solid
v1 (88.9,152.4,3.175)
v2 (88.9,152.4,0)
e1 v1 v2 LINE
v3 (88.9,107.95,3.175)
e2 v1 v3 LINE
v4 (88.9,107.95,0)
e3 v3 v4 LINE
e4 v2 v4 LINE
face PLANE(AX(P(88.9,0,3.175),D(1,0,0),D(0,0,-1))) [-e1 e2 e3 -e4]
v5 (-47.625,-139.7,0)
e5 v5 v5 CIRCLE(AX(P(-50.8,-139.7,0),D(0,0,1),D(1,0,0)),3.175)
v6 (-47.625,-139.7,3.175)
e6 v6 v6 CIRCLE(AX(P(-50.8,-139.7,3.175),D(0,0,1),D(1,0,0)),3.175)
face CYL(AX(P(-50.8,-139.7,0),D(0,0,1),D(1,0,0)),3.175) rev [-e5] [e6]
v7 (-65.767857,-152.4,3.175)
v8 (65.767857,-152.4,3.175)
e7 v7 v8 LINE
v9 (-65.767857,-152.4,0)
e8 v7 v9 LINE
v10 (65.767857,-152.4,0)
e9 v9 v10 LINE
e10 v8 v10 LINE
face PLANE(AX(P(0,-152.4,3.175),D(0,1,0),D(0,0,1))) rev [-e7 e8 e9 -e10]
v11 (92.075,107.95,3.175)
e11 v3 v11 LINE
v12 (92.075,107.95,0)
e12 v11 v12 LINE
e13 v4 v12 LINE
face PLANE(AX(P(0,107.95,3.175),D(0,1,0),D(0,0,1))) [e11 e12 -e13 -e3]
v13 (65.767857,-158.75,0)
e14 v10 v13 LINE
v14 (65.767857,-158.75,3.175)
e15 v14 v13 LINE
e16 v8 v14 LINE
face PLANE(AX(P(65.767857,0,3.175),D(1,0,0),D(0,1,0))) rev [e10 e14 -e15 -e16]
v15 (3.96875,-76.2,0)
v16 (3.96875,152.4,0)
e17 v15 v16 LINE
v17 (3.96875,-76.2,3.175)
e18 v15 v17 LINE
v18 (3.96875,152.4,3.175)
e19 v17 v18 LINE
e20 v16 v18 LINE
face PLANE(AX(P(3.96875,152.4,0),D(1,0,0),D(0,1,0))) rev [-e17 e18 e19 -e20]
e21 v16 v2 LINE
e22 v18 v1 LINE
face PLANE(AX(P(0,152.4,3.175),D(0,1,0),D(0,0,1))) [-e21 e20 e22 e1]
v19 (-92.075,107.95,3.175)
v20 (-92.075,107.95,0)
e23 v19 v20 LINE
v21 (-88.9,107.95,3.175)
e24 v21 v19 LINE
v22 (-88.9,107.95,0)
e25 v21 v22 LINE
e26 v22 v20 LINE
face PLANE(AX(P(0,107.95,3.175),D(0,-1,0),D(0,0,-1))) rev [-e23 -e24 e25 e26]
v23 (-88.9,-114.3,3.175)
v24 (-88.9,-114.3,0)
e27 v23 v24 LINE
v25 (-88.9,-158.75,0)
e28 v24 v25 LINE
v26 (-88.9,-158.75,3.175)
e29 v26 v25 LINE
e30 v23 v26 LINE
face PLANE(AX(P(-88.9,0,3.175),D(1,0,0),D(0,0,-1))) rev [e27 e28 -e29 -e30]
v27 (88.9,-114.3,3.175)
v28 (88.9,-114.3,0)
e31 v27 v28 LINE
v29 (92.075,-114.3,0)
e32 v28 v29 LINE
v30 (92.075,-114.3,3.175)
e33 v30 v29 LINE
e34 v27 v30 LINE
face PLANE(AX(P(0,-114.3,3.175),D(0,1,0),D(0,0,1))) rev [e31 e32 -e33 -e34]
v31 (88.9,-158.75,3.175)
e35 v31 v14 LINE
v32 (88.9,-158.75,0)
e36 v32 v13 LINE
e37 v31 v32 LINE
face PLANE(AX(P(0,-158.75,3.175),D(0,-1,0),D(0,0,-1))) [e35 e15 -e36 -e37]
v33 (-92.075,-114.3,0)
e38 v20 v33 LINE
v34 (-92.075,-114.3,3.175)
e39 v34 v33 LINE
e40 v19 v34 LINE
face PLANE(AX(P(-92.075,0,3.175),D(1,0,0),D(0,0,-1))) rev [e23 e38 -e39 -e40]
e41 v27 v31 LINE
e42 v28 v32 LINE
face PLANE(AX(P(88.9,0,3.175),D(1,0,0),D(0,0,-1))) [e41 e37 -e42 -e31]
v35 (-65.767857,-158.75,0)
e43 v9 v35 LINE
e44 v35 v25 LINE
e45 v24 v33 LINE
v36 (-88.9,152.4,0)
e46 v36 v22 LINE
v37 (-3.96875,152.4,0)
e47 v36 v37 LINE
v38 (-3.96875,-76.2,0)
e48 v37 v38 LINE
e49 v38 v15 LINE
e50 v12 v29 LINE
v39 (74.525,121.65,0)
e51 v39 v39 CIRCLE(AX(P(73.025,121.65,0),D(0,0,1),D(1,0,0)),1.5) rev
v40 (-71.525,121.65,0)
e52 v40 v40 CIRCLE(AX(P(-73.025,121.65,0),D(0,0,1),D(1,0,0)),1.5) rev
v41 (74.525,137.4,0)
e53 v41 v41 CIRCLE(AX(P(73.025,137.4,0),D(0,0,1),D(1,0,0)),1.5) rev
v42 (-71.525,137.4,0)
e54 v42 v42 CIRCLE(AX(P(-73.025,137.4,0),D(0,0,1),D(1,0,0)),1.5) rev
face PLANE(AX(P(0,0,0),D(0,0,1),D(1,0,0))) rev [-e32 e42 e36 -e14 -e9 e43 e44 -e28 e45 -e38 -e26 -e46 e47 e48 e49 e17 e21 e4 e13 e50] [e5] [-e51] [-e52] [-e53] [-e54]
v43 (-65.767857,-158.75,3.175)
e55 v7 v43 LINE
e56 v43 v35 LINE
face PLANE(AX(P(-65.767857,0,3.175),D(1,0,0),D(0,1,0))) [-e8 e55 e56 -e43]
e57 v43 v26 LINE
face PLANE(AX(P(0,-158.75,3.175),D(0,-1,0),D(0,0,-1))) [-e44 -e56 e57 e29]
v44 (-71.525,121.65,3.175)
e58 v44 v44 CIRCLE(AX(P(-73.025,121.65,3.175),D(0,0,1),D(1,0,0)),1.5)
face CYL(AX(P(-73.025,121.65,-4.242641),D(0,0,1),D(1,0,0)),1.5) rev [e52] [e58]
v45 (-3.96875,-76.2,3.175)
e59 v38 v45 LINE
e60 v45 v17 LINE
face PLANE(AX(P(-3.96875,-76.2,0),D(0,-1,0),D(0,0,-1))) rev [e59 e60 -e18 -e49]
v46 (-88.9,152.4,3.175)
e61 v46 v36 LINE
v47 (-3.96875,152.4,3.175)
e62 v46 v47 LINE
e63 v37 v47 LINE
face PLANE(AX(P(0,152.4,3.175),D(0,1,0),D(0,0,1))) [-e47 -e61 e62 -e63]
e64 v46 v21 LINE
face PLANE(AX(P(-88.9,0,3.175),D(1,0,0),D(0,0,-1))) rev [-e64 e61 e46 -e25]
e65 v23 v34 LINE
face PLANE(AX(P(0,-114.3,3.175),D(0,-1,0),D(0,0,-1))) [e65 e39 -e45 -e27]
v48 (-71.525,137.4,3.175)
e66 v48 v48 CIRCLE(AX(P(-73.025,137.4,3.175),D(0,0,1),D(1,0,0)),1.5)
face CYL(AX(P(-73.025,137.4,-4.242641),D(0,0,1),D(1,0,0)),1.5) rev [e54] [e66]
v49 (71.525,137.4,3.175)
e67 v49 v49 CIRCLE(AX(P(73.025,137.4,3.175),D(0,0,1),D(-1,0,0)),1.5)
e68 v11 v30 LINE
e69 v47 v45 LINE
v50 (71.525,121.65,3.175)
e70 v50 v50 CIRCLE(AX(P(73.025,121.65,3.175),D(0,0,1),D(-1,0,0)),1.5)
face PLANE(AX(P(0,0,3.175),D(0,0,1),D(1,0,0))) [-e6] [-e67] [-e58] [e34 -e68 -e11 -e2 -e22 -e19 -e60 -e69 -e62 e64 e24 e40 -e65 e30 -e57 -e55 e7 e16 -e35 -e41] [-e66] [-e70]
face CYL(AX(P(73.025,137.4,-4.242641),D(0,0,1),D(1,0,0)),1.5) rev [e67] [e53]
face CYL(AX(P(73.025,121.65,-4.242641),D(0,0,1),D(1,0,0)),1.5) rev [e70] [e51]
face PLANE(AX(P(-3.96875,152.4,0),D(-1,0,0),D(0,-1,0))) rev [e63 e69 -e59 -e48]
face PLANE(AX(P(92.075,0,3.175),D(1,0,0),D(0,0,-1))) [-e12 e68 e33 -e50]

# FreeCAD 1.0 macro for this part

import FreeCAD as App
import Part
import Sketcher
Q = App.Units.Quantity

doc = App.newDocument("Part")
params = doc.addObject("Spreadsheet::Sheet", "Params")
for row, (alias, value) in enumerate([
    ("sketch1_width", "7 in"),
    ("sketch1_height", "1.5 in"),
    ("sketch1_height2", "0.25 in"),
    ("sketch1_width2", "0.125 in"),
    ("pad1_length", "0.125 in"),
    ("sketch2_height", "9 in"),
    ("sketch2_width", "0.3125 in"),
    ("sketch3_diameter", "0.25 in"),
    ("pocket3_length", "0.125 in"),
    ("sketch5_height", "1.75 in"),
    ("sketch5_width", "0.125 in"),
    ("pad2_length", "0.125 in"),
    ("sketch6_height", "0.25 in"),
    ("pocket4_length", "0.125 in"),
], start=1):
    params.set(f"A{row}", alias)
    params.set(f"B{row}", "=" + value)
    params.setAlias(f"B{row}", alias)

body = doc.addObject("PartDesign::Body", "Body")

# Sketch on XY plane
sketch1 = doc.addObject("Sketcher::SketchObject", "Sketch")
body.addObject(sketch1)
sketch1.AttachmentSupport = (doc.XY_Plane, [""])
sketch1.MapMode = "FlatFace"
sketch1.addGeometry(Part.LineSegment(App.Vector(-88.9, 152.4, 0), App.Vector(-88.9, 108, 0)), False)
sketch1.addGeometry(Part.LineSegment(App.Vector(-88.9, 108, 0), App.Vector(-92.1, 108, 0)), False)
sketch1.addGeometry(Part.LineSegment(App.Vector(-92.1, 108, 0), App.Vector(-92.1, 63.5, 0)), False)
sketch1.addGeometry(Part.LineSegment(App.Vector(-92.1, 63.5, 0), App.Vector(-88.9, 63.5, 0)), False)
sketch1.addGeometry(Part.LineSegment(App.Vector(-88.9, 63.5, 0), App.Vector(-88.9, 19.1, 0)), False)
sketch1.addGeometry(Part.LineSegment(App.Vector(-88.9, 19.1, 0), App.Vector(-92.1, 19.1, 0)), False)
sketch1.addGeometry(Part.LineSegment(App.Vector(-92.1, 19.1, 0), App.Vector(-92.1, -25.4, 0)), False)
sketch1.addGeometry(Part.LineSegment(App.Vector(-92.1, -25.4, 0), App.Vector(-88.9, -25.4, 0)), False)
sketch1.addGeometry(Part.LineSegment(App.Vector(-88.9, -25.4, 0), App.Vector(-88.9, -69.8, 0)), False)
sketch1.addGeometry(Part.LineSegment(App.Vector(-88.9, -69.8, 0), App.Vector(-92.1, -69.8, 0)), False)
sketch1.addGeometry(Part.LineSegment(App.Vector(-92.1, -69.8, 0), App.Vector(-92.1, -114.3, 0)), False)
sketch1.addGeometry(Part.LineSegment(App.Vector(-92.1, -114.3, 0), App.Vector(-88.9, -114.3, 0)), False)
sketch1.addGeometry(Part.LineSegment(App.Vector(-88.9, -114.3, 0), App.Vector(-88.9, -152.4, 0)), False)
sketch1.addGeometry(Part.LineSegment(App.Vector(-88.9, -152.4, 0), App.Vector(-88.9, -158.8, 0)), False)
sketch1.addGeometry(Part.LineSegment(App.Vector(-88.9, -158.8, 0), App.Vector(-65.8, -158.8, 0)), False)
sketch1.addGeometry(Part.LineSegment(App.Vector(-65.8, -158.8, 0), App.Vector(-65.8, -152.4, 0)), False)
sketch1.addGeometry(Part.LineSegment(App.Vector(-65.8, -152.4, 0), App.Vector(-39.5, -152.4, 0)), False)
sketch1.addGeometry(Part.LineSegment(App.Vector(-39.5, -152.4, 0), App.Vector(-39.5, -158.8, 0)), False)
sketch1.addGeometry(Part.LineSegment(App.Vector(-39.5, -158.8, 0), App.Vector(-13.2, -158.8, 0)), False)
sketch1.addGeometry(Part.LineSegment(App.Vector(-13.2, -158.8, 0), App.Vector(-13.2, -152.4, 0)), False)
sketch1.addGeometry(Part.LineSegment(App.Vector(-13.2, -152.4, 0), App.Vector(13.2, -152.4, 0)), False)
sketch1.addGeometry(Part.LineSegment(App.Vector(13.2, -152.4, 0), App.Vector(13.2, -158.8, 0)), False)
sketch1.addGeometry(Part.LineSegment(App.Vector(13.2, -158.8, 0), App.Vector(39.5, -158.8, 0)), False)
sketch1.addGeometry(Part.LineSegment(App.Vector(39.5, -158.8, 0), App.Vector(39.5, -152.4, 0)), False)
sketch1.addGeometry(Part.LineSegment(App.Vector(39.5, -152.4, 0), App.Vector(65.8, -152.4, 0)), False)
sketch1.addGeometry(Part.LineSegment(App.Vector(65.8, -152.4, 0), App.Vector(65.8, -158.8, 0)), False)
sketch1.addGeometry(Part.LineSegment(App.Vector(65.8, -158.8, 0), App.Vector(88.9, -158.8, 0)), False)
sketch1.addGeometry(Part.LineSegment(App.Vector(88.9, -158.8, 0), App.Vector(88.9, -152.4, 0)), False)
sketch1.addGeometry(Part.LineSegment(App.Vector(88.9, -152.4, 0), App.Vector(88.9, -114.3, 0)), False)
sketch1.addGeometry(Part.LineSegment(App.Vector(88.9, -114.3, 0), App.Vector(92.1, -114.3, 0)), False)
sketch1.addGeometry(Part.LineSegment(App.Vector(92.1, -114.3, 0), App.Vector(92.1, -69.8, 0)), False)
sketch1.addGeometry(Part.LineSegment(App.Vector(92.1, -69.8, 0), App.Vector(88.9, -69.8, 0)), False)
sketch1.addGeometry(Part.LineSegment(App.Vector(88.9, -69.8, 0), App.Vector(88.9, -25.4, 0)), False)
sketch1.addGeometry(Part.LineSegment(App.Vector(88.9, -25.4, 0), App.Vector(92.1, -25.4, 0)), False)
sketch1.addGeometry(Part.LineSegment(App.Vector(92.1, -25.4, 0), App.Vector(92.1, 19.1, 0)), False)
sketch1.addGeometry(Part.LineSegment(App.Vector(92.1, 19.1, 0), App.Vector(88.9, 19.1, 0)), False)
sketch1.addGeometry(Part.LineSegment(App.Vector(88.9, 19.1, 0), App.Vector(88.9, 63.5, 0)), False)
sketch1.addGeometry(Part.LineSegment(App.Vector(88.9, 63.5, 0), App.Vector(92.1, 63.5, 0)), False)
sketch1.addGeometry(Part.LineSegment(App.Vector(92.1, 63.5, 0), App.Vector(92.1, 108, 0)), False)
sketch1.addGeometry(Part.LineSegment(App.Vector(92.1, 108, 0), App.Vector(88.9, 108, 0)), False)
sketch1.addGeometry(Part.LineSegment(App.Vector(88.9, 108, 0), App.Vector(88.9, 152.4, 0)), False)
sketch1.addGeometry(Part.LineSegment(App.Vector(88.9, 152.4, 0), App.Vector(-88.9, 152.4, 0)), False)
sketch1.addConstraint(Sketcher.Constraint("Coincident", 0, 2, 1, 1))
sketch1.addConstraint(Sketcher.Constraint("Coincident", 1, 2, 2, 1))
sketch1.addConstraint(Sketcher.Constraint("Coincident", 2, 2, 3, 1))
sketch1.addConstraint(Sketcher.Constraint("Coincident", 3, 2, 4, 1))
sketch1.addConstraint(Sketcher.Constraint("Coincident", 4, 2, 5, 1))
sketch1.addConstraint(Sketcher.Constraint("Coincident", 5, 2, 6, 1))
sketch1.addConstraint(Sketcher.Constraint("Coincident", 6, 2, 7, 1))
sketch1.addConstraint(Sketcher.Constraint("Coincident", 7, 2, 8, 1))
sketch1.addConstraint(Sketcher.Constraint("Coincident", 8, 2, 9, 1))
sketch1.addConstraint(Sketcher.Constraint("Coincident", 9, 2, 10, 1))
sketch1.addConstraint(Sketcher.Constraint("Coincident", 10, 2, 11, 1))
sketch1.addConstraint(Sketcher.Constraint("Coincident", 11, 2, 12, 1))
sketch1.addConstraint(Sketcher.Constraint("Coincident", 12, 2, 13, 1))
sketch1.addConstraint(Sketcher.Constraint("Coincident", 13, 2, 14, 1))
sketch1.addConstraint(Sketcher.Constraint("Coincident", 14, 2, 15, 1))
sketch1.addConstraint(Sketcher.Constraint("Coincident", 15, 2, 16, 1))
sketch1.addConstraint(Sketcher.Constraint("Coincident", 16, 2, 17, 1))
sketch1.addConstraint(Sketcher.Constraint("Coincident", 17, 2, 18, 1))
sketch1.addConstraint(Sketcher.Constraint("Coincident", 18, 2, 19, 1))
sketch1.addConstraint(Sketcher.Constraint("Coincident", 19, 2, 20, 1))
sketch1.addConstraint(Sketcher.Constraint("Coincident", 20, 2, 21, 1))
sketch1.addConstraint(Sketcher.Constraint("Coincident", 21, 2, 22, 1))
sketch1.addConstraint(Sketcher.Constraint("Coincident", 22, 2, 23, 1))
sketch1.addConstraint(Sketcher.Constraint("Coincident", 23, 2, 24, 1))
sketch1.addConstraint(Sketcher.Constraint("Coincident", 24, 2, 25, 1))
sketch1.addConstraint(Sketcher.Constraint("Coincident", 25, 2, 26, 1))
sketch1.addConstraint(Sketcher.Constraint("Coincident", 26, 2, 27, 1))
sketch1.addConstraint(Sketcher.Constraint("Coincident", 27, 2, 28, 1))
sketch1.addConstraint(Sketcher.Constraint("Coincident", 28, 2, 29, 1))
sketch1.addConstraint(Sketcher.Constraint("Coincident", 29, 2, 30, 1))
sketch1.addConstraint(Sketcher.Constraint("Coincident", 30, 2, 31, 1))
sketch1.addConstraint(Sketcher.Constraint("Coincident", 31, 2, 32, 1))
sketch1.addConstraint(Sketcher.Constraint("Coincident", 32, 2, 33, 1))
sketch1.addConstraint(Sketcher.Constraint("Coincident", 33, 2, 34, 1))
sketch1.addConstraint(Sketcher.Constraint("Coincident", 34, 2, 35, 1))
sketch1.addConstraint(Sketcher.Constraint("Coincident", 35, 2, 36, 1))
sketch1.addConstraint(Sketcher.Constraint("Coincident", 36, 2, 37, 1))
sketch1.addConstraint(Sketcher.Constraint("Coincident", 37, 2, 38, 1))
sketch1.addConstraint(Sketcher.Constraint("Coincident", 38, 2, 39, 1))
sketch1.addConstraint(Sketcher.Constraint("Coincident", 39, 2, 40, 1))
sketch1.addConstraint(Sketcher.Constraint("Coincident", 40, 2, 41, 1))
sketch1.addConstraint(Sketcher.Constraint("Coincident", 41, 2, 0, 1))
sketch1.addConstraint(Sketcher.Constraint("Vertical", 0))
sketch1.addConstraint(Sketcher.Constraint("Horizontal", 1))
sketch1.addConstraint(Sketcher.Constraint("Vertical", 2))
sketch1.addConstraint(Sketcher.Constraint("Horizontal", 3))
sketch1.addConstraint(Sketcher.Constraint("Vertical", 4))
sketch1.addConstraint(Sketcher.Constraint("Horizontal", 5))
sketch1.addConstraint(Sketcher.Constraint("Vertical", 6))
sketch1.addConstraint(Sketcher.Constraint("Horizontal", 7))
sketch1.addConstraint(Sketcher.Constraint("Vertical", 8))
sketch1.addConstraint(Sketcher.Constraint("Horizontal", 9))
sketch1.addConstraint(Sketcher.Constraint("Vertical", 10))
sketch1.addConstraint(Sketcher.Constraint("Horizontal", 11))
sketch1.addConstraint(Sketcher.Constraint("Vertical", 12))
sketch1.addConstraint(Sketcher.Constraint("Vertical", 13))
sketch1.addConstraint(Sketcher.Constraint("Horizontal", 14))
sketch1.addConstraint(Sketcher.Constraint("Vertical", 15))
sketch1.addConstraint(Sketcher.Constraint("Horizontal", 16))
sketch1.addConstraint(Sketcher.Constraint("Vertical", 17))
sketch1.addConstraint(Sketcher.Constraint("Horizontal", 18))
sketch1.addConstraint(Sketcher.Constraint("Vertical", 19))
sketch1.addConstraint(Sketcher.Constraint("Horizontal", 20))
sketch1.addConstraint(Sketcher.Constraint("Vertical", 21))
sketch1.addConstraint(Sketcher.Constraint("Horizontal", 22))
sketch1.addConstraint(Sketcher.Constraint("Vertical", 23))
sketch1.addConstraint(Sketcher.Constraint("Horizontal", 24))
sketch1.addConstraint(Sketcher.Constraint("Vertical", 25))
sketch1.addConstraint(Sketcher.Constraint("Horizontal", 26))
sketch1.addConstraint(Sketcher.Constraint("Vertical", 27))
sketch1.addConstraint(Sketcher.Constraint("Vertical", 28))
sketch1.addConstraint(Sketcher.Constraint("Horizontal", 29))
sketch1.addConstraint(Sketcher.Constraint("Vertical", 30))
sketch1.addConstraint(Sketcher.Constraint("Horizontal", 31))
sketch1.addConstraint(Sketcher.Constraint("Vertical", 32))
sketch1.addConstraint(Sketcher.Constraint("Horizontal", 33))
sketch1.addConstraint(Sketcher.Constraint("Vertical", 34))
sketch1.addConstraint(Sketcher.Constraint("Horizontal", 35))
sketch1.addConstraint(Sketcher.Constraint("Vertical", 36))
sketch1.addConstraint(Sketcher.Constraint("Horizontal", 37))
sketch1.addConstraint(Sketcher.Constraint("Vertical", 38))
sketch1.addConstraint(Sketcher.Constraint("Horizontal", 39))
sketch1.addConstraint(Sketcher.Constraint("Vertical", 40))
sketch1.addConstraint(Sketcher.Constraint("Horizontal", 41))
sketch1.addConstraint(Sketcher.Constraint("Symmetric", 12, 2, 40, 2, -1, 1))
sketch1.addConstraint(Sketcher.Constraint("Symmetric", 27, 2, 41, 2, -1, 1))
sketch1.addConstraint(Sketcher.Constraint("Symmetric", 18, 2, 21, 2, -2))
sketch1.addConstraint(Sketcher.Constraint("Symmetric", 16, 2, 23, 2, -2))
sketch1.addConstraint(Sketcher.Constraint("Symmetric", 14, 2, 25, 2, -2))
sketch1.addConstraint(Sketcher.Constraint("Symmetric", 11, 2, 28, 2, -2))
sketch1.addConstraint(Sketcher.Constraint("Symmetric", 9, 2, 30, 2, -2))
sketch1.addConstraint(Sketcher.Constraint("Symmetric", 7, 2, 32, 2, -2))
sketch1.addConstraint(Sketcher.Constraint("Symmetric", 5, 2, 34, 2, -2))
sketch1.addConstraint(Sketcher.Constraint("Symmetric", 3, 2, 36, 2, -2))
sketch1.addConstraint(Sketcher.Constraint("Symmetric", 1, 2, 38, 2, -2))
sketch1.addConstraint(Sketcher.Constraint("Horizontal", 12, 2, 15, 2))
sketch1.addConstraint(Sketcher.Constraint("Horizontal", 14, 2, 17, 2))
sketch1.addConstraint(Sketcher.Constraint("Horizontal", 16, 2, 19, 2))
sketch1.addConstraint(Sketcher.Constraint("Vertical", 0, 2, 3, 2))
sketch1.addConstraint(Sketcher.Constraint("Vertical", 2, 2, 5, 2))
sketch1.addConstraint(Sketcher.Constraint("Vertical", 4, 2, 7, 2))
sketch1.addConstraint(Sketcher.Constraint("Vertical", 6, 2, 9, 2))
sketch1.addConstraint(Sketcher.Constraint("Equal", 16, 18))
sketch1.addConstraint(Sketcher.Constraint("Equal", 18, 20))
sketch1.addConstraint(Sketcher.Constraint("Equal", 0, 2))
sketch1.addConstraint(Sketcher.Constraint("Equal", 2, 4))
sketch1.addConstraint(Sketcher.Constraint("Equal", 4, 6))
sketch1.addConstraint(Sketcher.Constraint("Equal", 6, 8))
sketch1.addConstraint(Sketcher.Constraint("Equal", 8, 10))
sketch1.addConstraint(Sketcher.Constraint("DistanceX", 41, 2, 41, 1, Q("7 in")))
sketch1.addConstraint(Sketcher.Constraint("DistanceY", 12, 2, 12, 1, Q("1.5 in")))
sketch1.addConstraint(Sketcher.Constraint("DistanceY", 6, 2, -1, 1, Q("1 in")))
sketch1.addConstraint(Sketcher.Constraint("DistanceY", 13, 2, 13, 1, Q("0.25 in")))
sketch1.addConstraint(Sketcher.Constraint("DistanceX", 1, 2, 1, 1, Q("0.125 in")))
sketch1.addConstraint(Sketcher.Constraint("DistanceX", 14, 1, 14, 2, 23.132143))
sketch1.setExpression("Constraints[109]", "Params.sketch1_width")
sketch1.setExpression("Constraints[110]", "Params.sketch1_height")
sketch1.setExpression("Constraints[112]", "Params.sketch1_height2")
sketch1.setExpression("Constraints[113]", "Params.sketch1_width2")
pad1 = doc.addObject("PartDesign::Pad", "Pad")
body.addObject(pad1)
pad1.Profile = sketch1
pad1.setExpression("Length", "Params.pad1_length")

# Sketch on XY plane
sketch2 = doc.addObject("Sketcher::SketchObject", "Sketch001")
body.addObject(sketch2)
sketch2.AttachmentSupport = (doc.XY_Plane, [""])
sketch2.MapMode = "FlatFace"
sketch2.AttachmentOffset = App.Placement(App.Vector(0, 0, 0.125 * 25.4), App.Rotation())
sketch2.addGeometry(Part.LineSegment(App.Vector(-4, 152, 0), App.Vector(-4, -76, 0)), False)
sketch2.addGeometry(Part.LineSegment(App.Vector(-4, -76, 0), App.Vector(4, -76, 0)), False)
sketch2.addGeometry(Part.LineSegment(App.Vector(4, -76, 0), App.Vector(4, 152, 0)), False)
sketch2.addGeometry(Part.LineSegment(App.Vector(4, 152, 0), App.Vector(-4, 152, 0)), False)
sketch2.addConstraint(Sketcher.Constraint("Coincident", 0, 2, 1, 1))
sketch2.addConstraint(Sketcher.Constraint("Coincident", 1, 2, 2, 1))
sketch2.addConstraint(Sketcher.Constraint("Coincident", 2, 2, 3, 1))
sketch2.addConstraint(Sketcher.Constraint("Coincident", 3, 2, 0, 1))
sketch2.addConstraint(Sketcher.Constraint("Vertical", 0))
sketch2.addConstraint(Sketcher.Constraint("Horizontal", 1))
sketch2.addConstraint(Sketcher.Constraint("Vertical", 2))
sketch2.addConstraint(Sketcher.Constraint("Horizontal", 3))
sketch2.addConstraint(Sketcher.Constraint("DistanceY", 0, 2, 0, 1, Q("9 in")))
sketch2.addConstraint(Sketcher.Constraint("DistanceY", 0, 2, -1, 1, Q("3 in")))
sketch2.addConstraint(Sketcher.Constraint("DistanceX", 1, 1, 1, 2, Q("0.3125 in")))
sketch2.addConstraint(Sketcher.Constraint("DistanceX", 0, 2, -1, 1, Q("0.15625 in")))
sketch2.setExpression("Constraints[8]", "Params.sketch2_height")
sketch2.setExpression("Constraints[10]", "Params.sketch2_width")
pocket1 = doc.addObject("PartDesign::Pocket", "Pocket")
body.addObject(pocket1)
pocket1.Profile = sketch2
pocket1.Type = "ThroughAll"

# Sketch on XY plane
sketch3 = doc.addObject("Sketcher::SketchObject", "Sketch002")
body.addObject(sketch3)
sketch3.AttachmentSupport = (doc.XY_Plane, [""])
sketch3.MapMode = "FlatFace"
sketch3.AttachmentOffset = App.Placement(App.Vector(0, 0, 0.125 * 25.4), App.Rotation())
sketch3.addGeometry(Part.Circle(App.Vector(-50.8, -139.7, 0), App.Vector(0, 0, 1), 3.2), False)
sketch3.addConstraint(Sketcher.Constraint("Diameter", 0, Q("0.25 in")))
sketch3.addConstraint(Sketcher.Constraint("DistanceX", 0, 3, -1, 1, Q("2 in")))
sketch3.addConstraint(Sketcher.Constraint("DistanceY", 0, 3, -1, 1, Q("5.5 in")))
sketch3.setExpression("Constraints[0]", "Params.sketch3_diameter")
pocket2 = doc.addObject("PartDesign::Pocket", "Pocket001")
body.addObject(pocket2)
pocket2.Profile = sketch3
pocket2.Type = "ThroughAll"

# Sketch on XY plane
sketch4 = doc.addObject("Sketcher::SketchObject", "Sketch003")
body.addObject(sketch4)
sketch4.AttachmentSupport = (doc.XY_Plane, [""])
sketch4.MapMode = "FlatFace"
sketch4.AttachmentOffset = App.Placement(App.Vector(0, 0, 0.125 * 25.4), App.Rotation())
sketch4.addGeometry(Part.Circle(App.Vector(-73, 137.4, 0), App.Vector(0, 0, 1), 1.5), False)
sketch4.addGeometry(Part.Circle(App.Vector(-73, 121.7, 0), App.Vector(0, 0, 1), 1.5), False)
sketch4.addGeometry(Part.Circle(App.Vector(73, 121.7, 0), App.Vector(0, 0, 1), 1.5), False)
sketch4.addGeometry(Part.Circle(App.Vector(73, 137.4, 0), App.Vector(0, 0, 1), 1.5), False)
sketch4.addConstraint(Sketcher.Constraint("Equal", 0, 1))
sketch4.addConstraint(Sketcher.Constraint("Equal", 1, 2))
sketch4.addConstraint(Sketcher.Constraint("Equal", 2, 3))
sketch4.addConstraint(Sketcher.Constraint("Symmetric", 1, 3, 2, 3, -2))
sketch4.addConstraint(Sketcher.Constraint("Symmetric", 0, 3, 3, 3, -2))
sketch4.addConstraint(Sketcher.Constraint("Vertical", 0, 3, 1, 3))
sketch4.addConstraint(Sketcher.Constraint("Diameter", 0, 3.0))
sketch4.addConstraint(Sketcher.Constraint("DistanceX", 1, 3, 2, 3, Q("5.75 in")))
sketch4.addConstraint(Sketcher.Constraint("DistanceY", -1, 1, 0, 3, 137.4))
sketch4.addConstraint(Sketcher.Constraint("DistanceY", -1, 1, 1, 3, 121.65))
pocket3 = doc.addObject("PartDesign::Pocket", "Pocket002")
body.addObject(pocket3)
pocket3.Profile = sketch4
pocket3.setExpression("Length", "Params.pocket3_length")

# Sketch on XY plane
sketch5 = doc.addObject("Sketcher::SketchObject", "Sketch004")
body.addObject(sketch5)
sketch5.AttachmentSupport = (doc.XY_Plane, [""])
sketch5.MapMode = "FlatFace"
sketch5.AttachmentOffset = App.Placement(App.Vector(0, 0, 0.125 * 25.4), App.Rotation())
sketch5.addGeometry(Part.LineSegment(App.Vector(-92.1, 63.5, 0), App.Vector(-92.1, 19.1, 0)), False)
sketch5.addGeometry(Part.LineSegment(App.Vector(-92.1, 19.1, 0), App.Vector(-88.9, 19.1, 0)), False)
sketch5.addGeometry(Part.LineSegment(App.Vector(-88.9, 19.1, 0), App.Vector(-88.9, 63.5, 0)), False)
sketch5.addGeometry(Part.LineSegment(App.Vector(-88.9, 63.5, 0), App.Vector(-92.1, 63.5, 0)), False)
sketch5.addGeometry(Part.LineSegment(App.Vector(-92.1, -25.4, 0), App.Vector(-92.1, -69.8, 0)), False)
sketch5.addGeometry(Part.LineSegment(App.Vector(-92.1, -69.8, 0), App.Vector(-88.9, -69.8, 0)), False)
sketch5.addGeometry(Part.LineSegment(App.Vector(-88.9, -69.8, 0), App.Vector(-88.9, -25.4, 0)), False)
sketch5.addGeometry(Part.LineSegment(App.Vector(-88.9, -25.4, 0), App.Vector(-92.1, -25.4, 0)), False)
sketch5.addGeometry(Part.LineSegment(App.Vector(88.9, 63.5, 0), App.Vector(88.9, 19.1, 0)), False)
sketch5.addGeometry(Part.LineSegment(App.Vector(88.9, 19.1, 0), App.Vector(92.1, 19.1, 0)), False)
sketch5.addGeometry(Part.LineSegment(App.Vector(92.1, 19.1, 0), App.Vector(92.1, 63.5, 0)), False)
sketch5.addGeometry(Part.LineSegment(App.Vector(92.1, 63.5, 0), App.Vector(88.9, 63.5, 0)), False)
sketch5.addGeometry(Part.LineSegment(App.Vector(88.9, -25.4, 0), App.Vector(88.9, -69.8, 0)), False)
sketch5.addGeometry(Part.LineSegment(App.Vector(88.9, -69.8, 0), App.Vector(92.1, -69.8, 0)), False)
sketch5.addGeometry(Part.LineSegment(App.Vector(92.1, -69.8, 0), App.Vector(92.1, -25.4, 0)), False)
sketch5.addGeometry(Part.LineSegment(App.Vector(92.1, -25.4, 0), App.Vector(88.9, -25.4, 0)), False)
sketch5.addConstraint(Sketcher.Constraint("Coincident", 0, 2, 1, 1))
sketch5.addConstraint(Sketcher.Constraint("Coincident", 1, 2, 2, 1))
sketch5.addConstraint(Sketcher.Constraint("Coincident", 2, 2, 3, 1))
sketch5.addConstraint(Sketcher.Constraint("Coincident", 3, 2, 0, 1))
sketch5.addConstraint(Sketcher.Constraint("Coincident", 4, 2, 5, 1))
sketch5.addConstraint(Sketcher.Constraint("Coincident", 5, 2, 6, 1))
sketch5.addConstraint(Sketcher.Constraint("Coincident", 6, 2, 7, 1))
sketch5.addConstraint(Sketcher.Constraint("Coincident", 7, 2, 4, 1))
sketch5.addConstraint(Sketcher.Constraint("Coincident", 8, 2, 9, 1))
sketch5.addConstraint(Sketcher.Constraint("Coincident", 9, 2, 10, 1))
sketch5.addConstraint(Sketcher.Constraint("Coincident", 10, 2, 11, 1))
sketch5.addConstraint(Sketcher.Constraint("Coincident", 11, 2, 8, 1))
sketch5.addConstraint(Sketcher.Constraint("Coincident", 12, 2, 13, 1))
sketch5.addConstraint(Sketcher.Constraint("Coincident", 13, 2, 14, 1))
sketch5.addConstraint(Sketcher.Constraint("Coincident", 14, 2, 15, 1))
sketch5.addConstraint(Sketcher.Constraint("Coincident", 15, 2, 12, 1))
sketch5.addConstraint(Sketcher.Constraint("Vertical", 0))
sketch5.addConstraint(Sketcher.Constraint("Horizontal", 1))
sketch5.addConstraint(Sketcher.Constraint("Vertical", 2))
sketch5.addConstraint(Sketcher.Constraint("Horizontal", 3))
sketch5.addConstraint(Sketcher.Constraint("Vertical", 4))
sketch5.addConstraint(Sketcher.Constraint("Horizontal", 5))
sketch5.addConstraint(Sketcher.Constraint("Vertical", 6))
sketch5.addConstraint(Sketcher.Constraint("Horizontal", 7))
sketch5.addConstraint(Sketcher.Constraint("Vertical", 8))
sketch5.addConstraint(Sketcher.Constraint("Horizontal", 9))
sketch5.addConstraint(Sketcher.Constraint("Vertical", 10))
sketch5.addConstraint(Sketcher.Constraint("Horizontal", 11))
sketch5.addConstraint(Sketcher.Constraint("Vertical", 12))
sketch5.addConstraint(Sketcher.Constraint("Horizontal", 13))
sketch5.addConstraint(Sketcher.Constraint("Vertical", 14))
sketch5.addConstraint(Sketcher.Constraint("Horizontal", 15))
sketch5.addConstraint(Sketcher.Constraint("Symmetric", 1, 2, 8, 2, -2))
sketch5.addConstraint(Sketcher.Constraint("Symmetric", 3, 2, 10, 2, -2))
sketch5.addConstraint(Sketcher.Constraint("Symmetric", 5, 2, 12, 2, -2))
sketch5.addConstraint(Sketcher.Constraint("Symmetric", 7, 2, 14, 2, -2))
sketch5.addConstraint(Sketcher.Constraint("Vertical", 3, 2, 4, 2))
sketch5.addConstraint(Sketcher.Constraint("Vertical", 2, 2, 5, 2))
sketch5.addConstraint(Sketcher.Constraint("Equal", 2, 4))
sketch5.addConstraint(Sketcher.Constraint("DistanceY", 6, 2, -1, 1, Q("1 in")))
sketch5.addConstraint(Sketcher.Constraint("DistanceX", 1, 2, 8, 2, Q("7 in")))
sketch5.addConstraint(Sketcher.Constraint("DistanceY", 0, 2, 0, 1, Q("1.75 in")))
sketch5.addConstraint(Sketcher.Constraint("DistanceY", -1, 1, 2, 2, Q("2.5 in")))
sketch5.addConstraint(Sketcher.Constraint("DistanceX", 1, 1, 1, 2, Q("0.125 in")))
sketch5.setExpression("Constraints[41]", "Params.sketch5_height")
sketch5.setExpression("Constraints[43]", "Params.sketch5_width")
pad2 = doc.addObject("PartDesign::Pad", "Pad001")
body.addObject(pad2)
pad2.Profile = sketch5
pad2.setExpression("Length", "Params.pad2_length")
pad2.Reversed = True

# Sketch on XY plane
sketch6 = doc.addObject("Sketcher::SketchObject", "Sketch005")
body.addObject(sketch6)
sketch6.AttachmentSupport = (doc.XY_Plane, [""])
sketch6.MapMode = "FlatFace"
sketch6.AttachmentOffset = App.Placement(App.Vector(0, 0, 0.125 * 25.4), App.Rotation())
sketch6.addGeometry(Part.LineSegment(App.Vector(-39, -152, 0), App.Vector(-39, -159, 0)), False)
sketch6.addGeometry(Part.LineSegment(App.Vector(-39, -159, 0), App.Vector(-13, -159, 0)), False)
sketch6.addGeometry(Part.LineSegment(App.Vector(-13, -159, 0), App.Vector(-13, -152, 0)), False)
sketch6.addGeometry(Part.LineSegment(App.Vector(-13, -152, 0), App.Vector(-39, -152, 0)), False)
sketch6.addGeometry(Part.LineSegment(App.Vector(13, -152, 0), App.Vector(13, -159, 0)), False)
sketch6.addGeometry(Part.LineSegment(App.Vector(13, -159, 0), App.Vector(39, -159, 0)), False)
sketch6.addGeometry(Part.LineSegment(App.Vector(39, -159, 0), App.Vector(39, -152, 0)), False)
sketch6.addGeometry(Part.LineSegment(App.Vector(39, -152, 0), App.Vector(13, -152, 0)), False)
sketch6.addConstraint(Sketcher.Constraint("Coincident", 0, 2, 1, 1))
sketch6.addConstraint(Sketcher.Constraint("Coincident", 1, 2, 2, 1))
sketch6.addConstraint(Sketcher.Constraint("Coincident", 2, 2, 3, 1))
sketch6.addConstraint(Sketcher.Constraint("Coincident", 3, 2, 0, 1))
sketch6.addConstraint(Sketcher.Constraint("Coincident", 4, 2, 5, 1))
sketch6.addConstraint(Sketcher.Constraint("Coincident", 5, 2, 6, 1))
sketch6.addConstraint(Sketcher.Constraint("Coincident", 6, 2, 7, 1))
sketch6.addConstraint(Sketcher.Constraint("Coincident", 7, 2, 4, 1))
sketch6.addConstraint(Sketcher.Constraint("Vertical", 0))
sketch6.addConstraint(Sketcher.Constraint("Horizontal", 1))
sketch6.addConstraint(Sketcher.Constraint("Vertical", 2))
sketch6.addConstraint(Sketcher.Constraint("Horizontal", 3))
sketch6.addConstraint(Sketcher.Constraint("Vertical", 4))
sketch6.addConstraint(Sketcher.Constraint("Horizontal", 5))
sketch6.addConstraint(Sketcher.Constraint("Vertical", 6))
sketch6.addConstraint(Sketcher.Constraint("Horizontal", 7))
sketch6.addConstraint(Sketcher.Constraint("Symmetric", 1, 2, 4, 2, -2))
sketch6.addConstraint(Sketcher.Constraint("Symmetric", 3, 2, 6, 2, -2))
sketch6.addConstraint(Sketcher.Constraint("DistanceY", 2, 2, -1, 1, Q("6 in")))
sketch6.addConstraint(Sketcher.Constraint("DistanceY", 0, 2, 0, 1, Q("0.25 in")))
sketch6.addConstraint(Sketcher.Constraint("DistanceX", 1, 1, 1, 2, 26.307143))
sketch6.addConstraint(Sketcher.Constraint("DistanceX", 1, 2, -1, 1, 13.153571))
sketch6.setExpression("Constraints[19]", "Params.sketch6_height")
pocket4 = doc.addObject("PartDesign::Pocket", "Pocket003")
body.addObject(pocket4)
pocket4.Profile = sketch6
pocket4.setExpression("Length", "Params.pocket4_length")

doc.recompute()
